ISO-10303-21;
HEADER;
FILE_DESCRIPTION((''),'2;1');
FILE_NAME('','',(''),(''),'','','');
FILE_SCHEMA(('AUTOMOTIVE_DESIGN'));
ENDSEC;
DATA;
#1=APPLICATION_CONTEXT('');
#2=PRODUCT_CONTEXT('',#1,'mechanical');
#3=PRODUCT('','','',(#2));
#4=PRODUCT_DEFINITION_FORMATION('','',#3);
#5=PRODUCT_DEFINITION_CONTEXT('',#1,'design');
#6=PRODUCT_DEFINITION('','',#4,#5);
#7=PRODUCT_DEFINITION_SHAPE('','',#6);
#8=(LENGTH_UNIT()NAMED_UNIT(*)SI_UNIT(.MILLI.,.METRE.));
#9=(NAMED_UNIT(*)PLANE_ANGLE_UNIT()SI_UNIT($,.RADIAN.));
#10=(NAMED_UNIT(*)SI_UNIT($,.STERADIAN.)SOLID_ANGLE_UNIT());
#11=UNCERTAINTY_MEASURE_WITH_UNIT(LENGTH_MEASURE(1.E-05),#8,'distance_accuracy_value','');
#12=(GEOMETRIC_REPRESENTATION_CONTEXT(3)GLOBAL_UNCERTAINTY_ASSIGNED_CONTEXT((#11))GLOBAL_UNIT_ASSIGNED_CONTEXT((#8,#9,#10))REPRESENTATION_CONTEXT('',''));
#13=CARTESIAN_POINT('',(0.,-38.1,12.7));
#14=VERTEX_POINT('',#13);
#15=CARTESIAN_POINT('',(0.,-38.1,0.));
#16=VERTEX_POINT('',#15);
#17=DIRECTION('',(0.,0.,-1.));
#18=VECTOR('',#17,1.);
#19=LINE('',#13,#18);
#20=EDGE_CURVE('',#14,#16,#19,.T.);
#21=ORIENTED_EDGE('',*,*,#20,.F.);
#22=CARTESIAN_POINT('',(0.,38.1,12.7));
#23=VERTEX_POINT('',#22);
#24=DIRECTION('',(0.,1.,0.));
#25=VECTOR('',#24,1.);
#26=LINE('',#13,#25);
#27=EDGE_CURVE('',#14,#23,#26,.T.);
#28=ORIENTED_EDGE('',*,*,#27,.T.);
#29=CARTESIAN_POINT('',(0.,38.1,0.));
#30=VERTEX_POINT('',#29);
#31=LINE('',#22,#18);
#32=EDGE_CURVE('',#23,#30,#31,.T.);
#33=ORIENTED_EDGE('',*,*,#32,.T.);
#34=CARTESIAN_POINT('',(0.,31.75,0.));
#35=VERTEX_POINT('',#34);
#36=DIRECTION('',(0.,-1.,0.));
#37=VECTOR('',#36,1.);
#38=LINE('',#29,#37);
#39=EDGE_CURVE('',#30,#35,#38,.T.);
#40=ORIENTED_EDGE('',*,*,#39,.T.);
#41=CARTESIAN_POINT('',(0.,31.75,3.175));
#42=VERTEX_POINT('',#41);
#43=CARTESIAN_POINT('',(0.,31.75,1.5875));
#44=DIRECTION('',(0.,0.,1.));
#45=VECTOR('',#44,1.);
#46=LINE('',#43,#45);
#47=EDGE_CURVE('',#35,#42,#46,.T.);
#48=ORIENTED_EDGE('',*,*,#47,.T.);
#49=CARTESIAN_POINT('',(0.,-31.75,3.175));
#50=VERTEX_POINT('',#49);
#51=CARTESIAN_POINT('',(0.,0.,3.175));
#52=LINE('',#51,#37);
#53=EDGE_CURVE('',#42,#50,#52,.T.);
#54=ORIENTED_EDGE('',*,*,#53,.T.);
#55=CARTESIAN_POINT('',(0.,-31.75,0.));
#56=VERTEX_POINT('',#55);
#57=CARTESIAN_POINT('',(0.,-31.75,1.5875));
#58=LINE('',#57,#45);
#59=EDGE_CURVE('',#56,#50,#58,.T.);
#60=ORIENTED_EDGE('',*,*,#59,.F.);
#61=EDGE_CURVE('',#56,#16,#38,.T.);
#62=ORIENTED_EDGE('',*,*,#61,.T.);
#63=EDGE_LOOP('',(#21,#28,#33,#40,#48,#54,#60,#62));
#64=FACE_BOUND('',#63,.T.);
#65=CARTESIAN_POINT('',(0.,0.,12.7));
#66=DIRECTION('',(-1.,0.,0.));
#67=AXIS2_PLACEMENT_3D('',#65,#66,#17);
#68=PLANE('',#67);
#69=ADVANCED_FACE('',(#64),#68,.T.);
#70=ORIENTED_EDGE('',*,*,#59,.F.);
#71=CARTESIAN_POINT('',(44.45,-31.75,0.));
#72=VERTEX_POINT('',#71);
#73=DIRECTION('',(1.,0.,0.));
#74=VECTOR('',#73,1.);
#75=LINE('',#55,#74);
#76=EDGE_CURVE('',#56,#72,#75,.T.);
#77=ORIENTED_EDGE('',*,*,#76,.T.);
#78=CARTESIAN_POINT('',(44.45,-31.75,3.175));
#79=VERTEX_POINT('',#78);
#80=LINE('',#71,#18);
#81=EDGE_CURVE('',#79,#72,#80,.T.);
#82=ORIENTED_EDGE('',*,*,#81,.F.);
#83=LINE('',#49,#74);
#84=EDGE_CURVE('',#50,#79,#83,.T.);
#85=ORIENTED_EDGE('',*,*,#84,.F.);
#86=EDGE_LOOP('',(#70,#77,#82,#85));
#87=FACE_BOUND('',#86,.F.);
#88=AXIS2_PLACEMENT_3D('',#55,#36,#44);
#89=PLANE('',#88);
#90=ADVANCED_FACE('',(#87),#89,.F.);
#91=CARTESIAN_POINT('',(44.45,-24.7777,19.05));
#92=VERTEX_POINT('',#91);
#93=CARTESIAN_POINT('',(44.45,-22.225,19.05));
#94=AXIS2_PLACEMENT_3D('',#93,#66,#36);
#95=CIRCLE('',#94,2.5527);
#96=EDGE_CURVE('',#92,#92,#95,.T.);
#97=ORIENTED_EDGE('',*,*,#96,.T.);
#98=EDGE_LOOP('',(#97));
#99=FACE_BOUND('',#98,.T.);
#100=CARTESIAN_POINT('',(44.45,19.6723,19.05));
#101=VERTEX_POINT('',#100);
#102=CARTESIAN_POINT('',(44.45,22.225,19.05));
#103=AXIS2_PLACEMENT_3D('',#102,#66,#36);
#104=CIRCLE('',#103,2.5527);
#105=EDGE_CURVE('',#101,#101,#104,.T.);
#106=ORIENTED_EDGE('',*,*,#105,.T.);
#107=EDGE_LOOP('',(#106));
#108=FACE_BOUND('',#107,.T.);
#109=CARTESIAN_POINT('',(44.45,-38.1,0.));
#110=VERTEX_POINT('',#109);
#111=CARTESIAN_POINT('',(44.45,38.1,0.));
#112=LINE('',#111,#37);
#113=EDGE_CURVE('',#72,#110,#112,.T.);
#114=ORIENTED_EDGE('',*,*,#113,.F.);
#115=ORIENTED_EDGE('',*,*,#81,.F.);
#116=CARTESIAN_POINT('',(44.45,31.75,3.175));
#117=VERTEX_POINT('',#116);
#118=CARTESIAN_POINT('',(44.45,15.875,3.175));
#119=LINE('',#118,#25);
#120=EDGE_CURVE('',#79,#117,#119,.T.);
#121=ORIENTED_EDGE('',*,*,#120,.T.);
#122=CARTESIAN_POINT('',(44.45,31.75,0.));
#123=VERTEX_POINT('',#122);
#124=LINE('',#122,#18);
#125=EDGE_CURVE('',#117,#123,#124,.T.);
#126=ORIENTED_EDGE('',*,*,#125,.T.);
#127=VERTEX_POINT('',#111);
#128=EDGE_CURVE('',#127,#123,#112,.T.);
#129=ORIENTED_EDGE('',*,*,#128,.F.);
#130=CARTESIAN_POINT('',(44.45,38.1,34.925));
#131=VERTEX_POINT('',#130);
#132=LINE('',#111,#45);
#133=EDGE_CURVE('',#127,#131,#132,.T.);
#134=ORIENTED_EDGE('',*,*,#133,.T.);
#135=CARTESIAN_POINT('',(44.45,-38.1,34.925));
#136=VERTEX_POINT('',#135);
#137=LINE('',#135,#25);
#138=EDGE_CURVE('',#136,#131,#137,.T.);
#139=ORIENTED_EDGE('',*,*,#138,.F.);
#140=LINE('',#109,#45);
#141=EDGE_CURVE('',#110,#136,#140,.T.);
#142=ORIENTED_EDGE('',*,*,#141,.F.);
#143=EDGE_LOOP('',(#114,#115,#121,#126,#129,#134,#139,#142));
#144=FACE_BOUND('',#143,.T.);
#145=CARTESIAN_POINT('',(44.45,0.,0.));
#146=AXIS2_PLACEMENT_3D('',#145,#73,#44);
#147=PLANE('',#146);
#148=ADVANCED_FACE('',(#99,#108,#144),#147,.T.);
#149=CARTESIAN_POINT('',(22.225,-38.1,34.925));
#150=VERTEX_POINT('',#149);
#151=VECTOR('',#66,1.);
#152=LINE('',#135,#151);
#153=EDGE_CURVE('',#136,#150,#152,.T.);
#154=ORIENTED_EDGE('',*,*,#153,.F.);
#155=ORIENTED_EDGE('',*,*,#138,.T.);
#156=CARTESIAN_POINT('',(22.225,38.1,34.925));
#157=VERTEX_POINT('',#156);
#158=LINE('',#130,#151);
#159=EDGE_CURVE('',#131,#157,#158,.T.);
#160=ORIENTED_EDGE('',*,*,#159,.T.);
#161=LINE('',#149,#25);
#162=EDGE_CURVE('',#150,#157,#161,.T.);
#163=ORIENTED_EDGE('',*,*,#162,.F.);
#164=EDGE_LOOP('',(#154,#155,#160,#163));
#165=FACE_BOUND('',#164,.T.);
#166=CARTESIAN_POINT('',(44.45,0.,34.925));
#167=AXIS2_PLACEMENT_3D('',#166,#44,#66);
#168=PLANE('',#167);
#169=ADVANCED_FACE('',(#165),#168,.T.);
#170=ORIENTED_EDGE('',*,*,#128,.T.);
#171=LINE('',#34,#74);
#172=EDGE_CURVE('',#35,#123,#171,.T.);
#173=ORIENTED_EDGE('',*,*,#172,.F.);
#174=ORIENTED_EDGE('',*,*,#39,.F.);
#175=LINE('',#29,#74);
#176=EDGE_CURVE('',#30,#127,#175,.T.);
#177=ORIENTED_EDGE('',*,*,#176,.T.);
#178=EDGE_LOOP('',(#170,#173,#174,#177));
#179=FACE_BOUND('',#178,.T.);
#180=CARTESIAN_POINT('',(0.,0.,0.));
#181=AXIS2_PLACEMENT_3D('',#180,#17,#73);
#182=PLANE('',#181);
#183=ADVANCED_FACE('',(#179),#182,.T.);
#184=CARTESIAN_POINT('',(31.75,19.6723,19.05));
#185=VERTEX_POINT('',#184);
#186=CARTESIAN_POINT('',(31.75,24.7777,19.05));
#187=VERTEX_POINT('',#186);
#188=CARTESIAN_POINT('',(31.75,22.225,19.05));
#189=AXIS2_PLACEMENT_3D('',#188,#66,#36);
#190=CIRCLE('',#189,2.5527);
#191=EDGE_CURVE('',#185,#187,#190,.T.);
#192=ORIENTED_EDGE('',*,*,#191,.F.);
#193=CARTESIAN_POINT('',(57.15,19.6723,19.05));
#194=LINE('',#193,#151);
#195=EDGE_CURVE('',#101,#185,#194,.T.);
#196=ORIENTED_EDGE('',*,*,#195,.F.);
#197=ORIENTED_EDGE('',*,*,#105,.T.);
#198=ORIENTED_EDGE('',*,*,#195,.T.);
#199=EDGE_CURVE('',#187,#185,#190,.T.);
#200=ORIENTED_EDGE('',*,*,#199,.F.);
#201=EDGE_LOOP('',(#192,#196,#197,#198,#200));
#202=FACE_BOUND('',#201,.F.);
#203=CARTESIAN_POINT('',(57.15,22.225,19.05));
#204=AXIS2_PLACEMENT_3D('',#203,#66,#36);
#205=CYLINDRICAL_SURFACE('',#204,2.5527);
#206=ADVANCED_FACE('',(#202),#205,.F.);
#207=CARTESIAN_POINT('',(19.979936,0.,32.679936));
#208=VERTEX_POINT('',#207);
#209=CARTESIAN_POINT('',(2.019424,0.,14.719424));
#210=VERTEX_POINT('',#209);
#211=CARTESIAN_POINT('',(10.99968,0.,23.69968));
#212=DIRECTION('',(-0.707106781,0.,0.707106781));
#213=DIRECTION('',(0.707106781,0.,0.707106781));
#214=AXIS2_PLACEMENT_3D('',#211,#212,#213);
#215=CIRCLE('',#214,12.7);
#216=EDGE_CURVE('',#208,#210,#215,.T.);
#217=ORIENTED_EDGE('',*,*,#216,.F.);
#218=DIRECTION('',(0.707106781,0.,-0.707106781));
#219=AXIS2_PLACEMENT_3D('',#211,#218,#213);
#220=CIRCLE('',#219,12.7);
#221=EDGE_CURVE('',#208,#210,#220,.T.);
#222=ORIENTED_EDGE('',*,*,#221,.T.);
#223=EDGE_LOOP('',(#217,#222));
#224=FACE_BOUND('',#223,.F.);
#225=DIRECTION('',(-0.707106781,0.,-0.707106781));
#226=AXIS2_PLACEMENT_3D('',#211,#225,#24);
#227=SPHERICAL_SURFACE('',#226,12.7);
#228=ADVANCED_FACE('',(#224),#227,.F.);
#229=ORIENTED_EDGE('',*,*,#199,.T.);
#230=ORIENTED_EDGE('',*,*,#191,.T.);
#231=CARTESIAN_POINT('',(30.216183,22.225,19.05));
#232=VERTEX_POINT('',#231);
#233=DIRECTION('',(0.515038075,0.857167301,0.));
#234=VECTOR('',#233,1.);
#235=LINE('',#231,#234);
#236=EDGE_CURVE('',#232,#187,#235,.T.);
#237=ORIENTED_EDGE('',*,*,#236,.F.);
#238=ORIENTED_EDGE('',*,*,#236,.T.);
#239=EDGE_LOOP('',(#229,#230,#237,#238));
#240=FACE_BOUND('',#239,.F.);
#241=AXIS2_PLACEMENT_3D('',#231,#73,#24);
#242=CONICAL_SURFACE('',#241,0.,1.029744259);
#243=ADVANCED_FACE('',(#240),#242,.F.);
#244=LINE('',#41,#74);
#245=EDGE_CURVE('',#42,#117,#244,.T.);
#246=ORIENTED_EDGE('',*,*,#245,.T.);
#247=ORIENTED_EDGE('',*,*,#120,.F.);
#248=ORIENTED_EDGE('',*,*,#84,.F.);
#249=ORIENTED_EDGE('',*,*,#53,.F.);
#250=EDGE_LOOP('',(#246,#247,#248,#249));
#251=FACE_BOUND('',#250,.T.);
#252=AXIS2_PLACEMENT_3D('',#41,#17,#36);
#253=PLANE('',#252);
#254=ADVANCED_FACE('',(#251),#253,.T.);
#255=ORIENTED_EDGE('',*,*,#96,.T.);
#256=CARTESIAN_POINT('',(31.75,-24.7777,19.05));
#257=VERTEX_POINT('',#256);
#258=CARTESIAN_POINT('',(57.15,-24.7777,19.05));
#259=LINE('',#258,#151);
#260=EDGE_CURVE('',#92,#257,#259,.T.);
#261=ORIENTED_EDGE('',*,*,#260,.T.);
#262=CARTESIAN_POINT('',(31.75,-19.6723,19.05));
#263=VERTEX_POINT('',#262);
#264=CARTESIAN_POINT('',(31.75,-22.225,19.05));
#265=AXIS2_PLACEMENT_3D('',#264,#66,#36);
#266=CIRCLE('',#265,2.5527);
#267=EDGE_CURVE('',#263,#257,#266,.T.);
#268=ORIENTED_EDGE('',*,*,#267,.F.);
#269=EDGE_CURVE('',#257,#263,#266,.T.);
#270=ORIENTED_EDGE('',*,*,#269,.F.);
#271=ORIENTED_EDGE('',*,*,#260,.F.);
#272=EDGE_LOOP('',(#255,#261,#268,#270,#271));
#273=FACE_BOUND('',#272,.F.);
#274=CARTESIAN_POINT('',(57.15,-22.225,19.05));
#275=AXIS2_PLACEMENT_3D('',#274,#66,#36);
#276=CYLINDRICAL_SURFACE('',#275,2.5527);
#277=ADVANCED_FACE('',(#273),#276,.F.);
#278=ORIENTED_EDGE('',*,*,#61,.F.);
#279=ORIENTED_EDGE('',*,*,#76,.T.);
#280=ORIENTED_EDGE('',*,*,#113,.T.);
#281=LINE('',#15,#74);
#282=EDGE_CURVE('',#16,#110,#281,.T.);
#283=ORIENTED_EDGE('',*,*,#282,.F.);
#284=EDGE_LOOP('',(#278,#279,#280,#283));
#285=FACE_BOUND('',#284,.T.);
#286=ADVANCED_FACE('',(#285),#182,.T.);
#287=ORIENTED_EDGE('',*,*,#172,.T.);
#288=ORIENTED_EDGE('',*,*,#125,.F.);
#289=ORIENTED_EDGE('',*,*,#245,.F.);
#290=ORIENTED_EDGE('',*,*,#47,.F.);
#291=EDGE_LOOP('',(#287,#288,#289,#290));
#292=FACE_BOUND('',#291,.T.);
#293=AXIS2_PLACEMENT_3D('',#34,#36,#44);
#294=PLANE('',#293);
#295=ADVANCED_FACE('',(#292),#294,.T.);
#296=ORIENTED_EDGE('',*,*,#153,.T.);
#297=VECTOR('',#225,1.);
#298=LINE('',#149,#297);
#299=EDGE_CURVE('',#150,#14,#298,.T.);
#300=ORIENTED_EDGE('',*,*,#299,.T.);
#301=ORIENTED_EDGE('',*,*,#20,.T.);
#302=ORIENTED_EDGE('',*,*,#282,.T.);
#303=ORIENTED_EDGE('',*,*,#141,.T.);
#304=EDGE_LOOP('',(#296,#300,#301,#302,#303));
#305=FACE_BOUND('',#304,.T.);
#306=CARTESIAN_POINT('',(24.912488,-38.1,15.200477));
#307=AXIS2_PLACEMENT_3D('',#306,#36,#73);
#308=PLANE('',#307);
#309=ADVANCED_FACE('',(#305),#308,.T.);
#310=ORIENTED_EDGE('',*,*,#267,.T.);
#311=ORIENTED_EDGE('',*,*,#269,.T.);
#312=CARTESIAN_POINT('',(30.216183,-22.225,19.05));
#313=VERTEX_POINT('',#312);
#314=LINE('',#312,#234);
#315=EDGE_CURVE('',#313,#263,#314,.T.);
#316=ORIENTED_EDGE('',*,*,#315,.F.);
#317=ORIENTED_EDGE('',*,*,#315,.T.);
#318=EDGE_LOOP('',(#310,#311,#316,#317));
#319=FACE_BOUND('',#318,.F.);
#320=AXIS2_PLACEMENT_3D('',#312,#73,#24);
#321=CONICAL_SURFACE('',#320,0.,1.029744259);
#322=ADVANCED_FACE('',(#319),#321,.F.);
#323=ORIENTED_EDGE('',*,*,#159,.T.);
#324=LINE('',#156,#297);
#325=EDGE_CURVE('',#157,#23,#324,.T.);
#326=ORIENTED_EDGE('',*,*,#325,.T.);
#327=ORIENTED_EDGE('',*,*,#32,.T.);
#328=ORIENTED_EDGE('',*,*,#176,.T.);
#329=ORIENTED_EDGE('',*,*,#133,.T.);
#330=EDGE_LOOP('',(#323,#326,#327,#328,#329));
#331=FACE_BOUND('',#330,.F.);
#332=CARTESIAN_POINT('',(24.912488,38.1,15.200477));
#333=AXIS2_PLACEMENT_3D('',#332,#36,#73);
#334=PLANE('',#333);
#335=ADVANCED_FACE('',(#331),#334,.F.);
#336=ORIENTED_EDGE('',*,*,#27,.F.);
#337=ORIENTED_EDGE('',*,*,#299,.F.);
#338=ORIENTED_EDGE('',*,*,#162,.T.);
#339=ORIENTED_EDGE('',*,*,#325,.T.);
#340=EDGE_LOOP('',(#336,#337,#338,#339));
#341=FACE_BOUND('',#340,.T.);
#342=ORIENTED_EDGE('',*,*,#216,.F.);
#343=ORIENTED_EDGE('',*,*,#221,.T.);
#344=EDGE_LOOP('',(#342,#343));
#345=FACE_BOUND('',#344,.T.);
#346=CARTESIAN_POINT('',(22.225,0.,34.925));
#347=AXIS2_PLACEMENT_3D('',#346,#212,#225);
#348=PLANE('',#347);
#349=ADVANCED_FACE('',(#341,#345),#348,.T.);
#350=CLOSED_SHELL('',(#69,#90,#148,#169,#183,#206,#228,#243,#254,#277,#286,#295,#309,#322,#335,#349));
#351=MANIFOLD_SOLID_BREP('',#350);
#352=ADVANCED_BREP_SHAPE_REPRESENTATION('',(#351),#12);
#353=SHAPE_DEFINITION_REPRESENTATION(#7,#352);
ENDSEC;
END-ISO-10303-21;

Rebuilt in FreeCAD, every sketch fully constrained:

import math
import FreeCAD as App
import Part
import Sketcher
from FreeCAD import Vector
Q = App.Units.Quantity


def add_polygon(sketch, points):
    """Adds a closed chain of lines whose ends are joined by coincident constraints."""
    first, n = sketch.GeometryCount, len(points)
    for a, b in zip(points, points[1:] + points[:1]):
        sketch.addGeometry(Part.LineSegment(App.Vector(*a, 0), App.Vector(*b, 0)), False)
    for i in range(n):
        sketch.addConstraint(Sketcher.Constraint("Coincident", first + i, 2, first + (i + 1) % n, 1))

doc = App.newDocument("Part")
body = doc.addObject("PartDesign::Body", "Body")

sketch1 = body.newObject("Sketcher::SketchObject", "Sketch")
sketch1.AttachmentSupport = (doc.getObject("XZ_Plane"), [""])
sketch1.MapMode = "FlatFace"
add_polygon(sketch1, [(0, 13), (0, 0), (44, 0), (44, 35), (22, 35)])
sketch1.addConstraint(Sketcher.Constraint("Vertical", 0))
sketch1.addConstraint(Sketcher.Constraint("Horizontal", 1))
sketch1.addConstraint(Sketcher.Constraint("Vertical", 2))
sketch1.addConstraint(Sketcher.Constraint("Horizontal", 3))
sketch1.addConstraint(Sketcher.Constraint("Coincident", 0, 2, -1, 1))
sketch1.addConstraint(Sketcher.Constraint("DistanceY", 0, 2, 0, 1, Q("0.5 in")))
sketch1.addConstraint(Sketcher.Constraint("Angle", 4, Q("-135 deg")))
sketch1.addConstraint(Sketcher.Constraint("DistanceX", 1, 1, 1, 2, Q("1.75 in")))
sketch1.addConstraint(Sketcher.Constraint("DistanceX", 3, 2, 3, 1, Q("0.875 in")))
pad1 = body.newObject("PartDesign::Pad", "Pad")
pad1.Profile = sketch1
pad1.Length = Q("3 in")
pad1.Midplane = True

sketch2 = body.newObject("Sketcher::SketchObject", "Sketch001")
sketch2.AttachmentSupport = (doc.getObject("YZ_Plane"), [""])
sketch2.MapMode = "FlatFace"
add_polygon(sketch2, [(31.8, 3.2), (31.8, 0), (-31.8, 0), (-31.8, 3.2)])
sketch2.addConstraint(Sketcher.Constraint("Vertical", 0))
sketch2.addConstraint(Sketcher.Constraint("Horizontal", 1))
sketch2.addConstraint(Sketcher.Constraint("Vertical", 2))
sketch2.addConstraint(Sketcher.Constraint("Horizontal", 3))
sketch2.addConstraint(Sketcher.Constraint("Symmetric", 0, 2, 1, 2, -1, 1))
sketch2.addConstraint(Sketcher.Constraint("DistanceX", 1, 2, 1, 1, Q("2.5 in")))
sketch2.addConstraint(Sketcher.Constraint("DistanceY", 0, 2, 0, 1, Q("0.125 in")))
pocket1 = body.newObject("PartDesign::Pocket", "Pocket")
pocket1.Profile = sketch2
pocket1.Type = "ThroughAll"
pocket1.Reversed = True

sketch3 = body.newObject("Sketcher::SketchObject", "Sketch002")
sketch3.AttachmentSupport = (doc.getObject("YZ_Plane"), [""])
sketch3.MapMode = "FlatFace"
sketch3.AttachmentOffset = App.Placement(Vector(0, 0, 1.75 * 25.4), App.Rotation())
sketch3.addGeometry(Part.Circle(Vector(-22.2, 19.1, 0), Vector(0, 0, 1), 2.6), False)
sketch3.addGeometry(Part.Circle(Vector(22.2, 19.1, 0), Vector(0, 0, 1), 2.6), False)
sketch3.addConstraint(Sketcher.Constraint("Equal", 0, 1))
sketch3.addConstraint(Sketcher.Constraint("Symmetric", 0, 3, 1, 3, -2))
sketch3.addConstraint(Sketcher.Constraint("Diameter", 0, Q("0.201 in")))
sketch3.addConstraint(Sketcher.Constraint("DistanceY", -1, 1, 0, 3, Q("0.75 in")))
sketch3.addConstraint(Sketcher.Constraint("DistanceX", 0, 3, 1, 3, Q("1.75 in")))
doc.recompute()
hole = body.newObject("PartDesign::Hole", "Hole")
hole.Profile = sketch3
hole.ThreadType = "None"
hole.Diameter = Q("0.201 in")
hole.DepthType = "Dimension"
hole.Depth = Q("0.5 in")
hole.DrillPoint = "Angled"
hole.DrillPointAngle = 118

sketch4 = body.newObject("Sketcher::SketchObject", "Sketch003")
sketch4.Placement = App.Placement(Vector(-6.35, 0, 6.35), App.Rotation(Vector(0, -1, 0), Vector(0.707106781, 0, 0.707106781), Vector(-0.707106781, 0, 0.707106781), "ZXY"))
sketch4.addGeometry(Part.LineSegment(Vector(0, 12, 0), Vector(0, 37, 0)), False)
sketch4.addGeometry(Part.ArcOfCircle(Part.Circle(Vector(0, 25, 0), Vector(0, 0, 1), 13), math.radians(90), math.radians(270)), False)
sketch4.addConstraint(Sketcher.Constraint("Coincident", 0, 1, 1, 2))
sketch4.addConstraint(Sketcher.Constraint("Coincident", 1, 1, 0, 2))
sketch4.addConstraint(Sketcher.Constraint("Vertical", 0))
sketch4.addConstraint(Sketcher.Constraint("PointOnObject", 1, 3, -2))
sketch4.addConstraint(Sketcher.Constraint("PointOnObject", 0, 1, -2))
sketch4.addConstraint(Sketcher.Constraint("Radius", 1, Q("0.5 in")))
sketch4.addConstraint(Sketcher.Constraint("DistanceY", -1, 1, 1, 3, 24.536153))
groove = body.newObject("PartDesign::Groove", "Groove")
groove.Profile = sketch4
groove.ReferenceAxis = (sketch4, ["V_Axis"])
groove.Angle = 180
groove.Reversed = True

doc.recompute()
